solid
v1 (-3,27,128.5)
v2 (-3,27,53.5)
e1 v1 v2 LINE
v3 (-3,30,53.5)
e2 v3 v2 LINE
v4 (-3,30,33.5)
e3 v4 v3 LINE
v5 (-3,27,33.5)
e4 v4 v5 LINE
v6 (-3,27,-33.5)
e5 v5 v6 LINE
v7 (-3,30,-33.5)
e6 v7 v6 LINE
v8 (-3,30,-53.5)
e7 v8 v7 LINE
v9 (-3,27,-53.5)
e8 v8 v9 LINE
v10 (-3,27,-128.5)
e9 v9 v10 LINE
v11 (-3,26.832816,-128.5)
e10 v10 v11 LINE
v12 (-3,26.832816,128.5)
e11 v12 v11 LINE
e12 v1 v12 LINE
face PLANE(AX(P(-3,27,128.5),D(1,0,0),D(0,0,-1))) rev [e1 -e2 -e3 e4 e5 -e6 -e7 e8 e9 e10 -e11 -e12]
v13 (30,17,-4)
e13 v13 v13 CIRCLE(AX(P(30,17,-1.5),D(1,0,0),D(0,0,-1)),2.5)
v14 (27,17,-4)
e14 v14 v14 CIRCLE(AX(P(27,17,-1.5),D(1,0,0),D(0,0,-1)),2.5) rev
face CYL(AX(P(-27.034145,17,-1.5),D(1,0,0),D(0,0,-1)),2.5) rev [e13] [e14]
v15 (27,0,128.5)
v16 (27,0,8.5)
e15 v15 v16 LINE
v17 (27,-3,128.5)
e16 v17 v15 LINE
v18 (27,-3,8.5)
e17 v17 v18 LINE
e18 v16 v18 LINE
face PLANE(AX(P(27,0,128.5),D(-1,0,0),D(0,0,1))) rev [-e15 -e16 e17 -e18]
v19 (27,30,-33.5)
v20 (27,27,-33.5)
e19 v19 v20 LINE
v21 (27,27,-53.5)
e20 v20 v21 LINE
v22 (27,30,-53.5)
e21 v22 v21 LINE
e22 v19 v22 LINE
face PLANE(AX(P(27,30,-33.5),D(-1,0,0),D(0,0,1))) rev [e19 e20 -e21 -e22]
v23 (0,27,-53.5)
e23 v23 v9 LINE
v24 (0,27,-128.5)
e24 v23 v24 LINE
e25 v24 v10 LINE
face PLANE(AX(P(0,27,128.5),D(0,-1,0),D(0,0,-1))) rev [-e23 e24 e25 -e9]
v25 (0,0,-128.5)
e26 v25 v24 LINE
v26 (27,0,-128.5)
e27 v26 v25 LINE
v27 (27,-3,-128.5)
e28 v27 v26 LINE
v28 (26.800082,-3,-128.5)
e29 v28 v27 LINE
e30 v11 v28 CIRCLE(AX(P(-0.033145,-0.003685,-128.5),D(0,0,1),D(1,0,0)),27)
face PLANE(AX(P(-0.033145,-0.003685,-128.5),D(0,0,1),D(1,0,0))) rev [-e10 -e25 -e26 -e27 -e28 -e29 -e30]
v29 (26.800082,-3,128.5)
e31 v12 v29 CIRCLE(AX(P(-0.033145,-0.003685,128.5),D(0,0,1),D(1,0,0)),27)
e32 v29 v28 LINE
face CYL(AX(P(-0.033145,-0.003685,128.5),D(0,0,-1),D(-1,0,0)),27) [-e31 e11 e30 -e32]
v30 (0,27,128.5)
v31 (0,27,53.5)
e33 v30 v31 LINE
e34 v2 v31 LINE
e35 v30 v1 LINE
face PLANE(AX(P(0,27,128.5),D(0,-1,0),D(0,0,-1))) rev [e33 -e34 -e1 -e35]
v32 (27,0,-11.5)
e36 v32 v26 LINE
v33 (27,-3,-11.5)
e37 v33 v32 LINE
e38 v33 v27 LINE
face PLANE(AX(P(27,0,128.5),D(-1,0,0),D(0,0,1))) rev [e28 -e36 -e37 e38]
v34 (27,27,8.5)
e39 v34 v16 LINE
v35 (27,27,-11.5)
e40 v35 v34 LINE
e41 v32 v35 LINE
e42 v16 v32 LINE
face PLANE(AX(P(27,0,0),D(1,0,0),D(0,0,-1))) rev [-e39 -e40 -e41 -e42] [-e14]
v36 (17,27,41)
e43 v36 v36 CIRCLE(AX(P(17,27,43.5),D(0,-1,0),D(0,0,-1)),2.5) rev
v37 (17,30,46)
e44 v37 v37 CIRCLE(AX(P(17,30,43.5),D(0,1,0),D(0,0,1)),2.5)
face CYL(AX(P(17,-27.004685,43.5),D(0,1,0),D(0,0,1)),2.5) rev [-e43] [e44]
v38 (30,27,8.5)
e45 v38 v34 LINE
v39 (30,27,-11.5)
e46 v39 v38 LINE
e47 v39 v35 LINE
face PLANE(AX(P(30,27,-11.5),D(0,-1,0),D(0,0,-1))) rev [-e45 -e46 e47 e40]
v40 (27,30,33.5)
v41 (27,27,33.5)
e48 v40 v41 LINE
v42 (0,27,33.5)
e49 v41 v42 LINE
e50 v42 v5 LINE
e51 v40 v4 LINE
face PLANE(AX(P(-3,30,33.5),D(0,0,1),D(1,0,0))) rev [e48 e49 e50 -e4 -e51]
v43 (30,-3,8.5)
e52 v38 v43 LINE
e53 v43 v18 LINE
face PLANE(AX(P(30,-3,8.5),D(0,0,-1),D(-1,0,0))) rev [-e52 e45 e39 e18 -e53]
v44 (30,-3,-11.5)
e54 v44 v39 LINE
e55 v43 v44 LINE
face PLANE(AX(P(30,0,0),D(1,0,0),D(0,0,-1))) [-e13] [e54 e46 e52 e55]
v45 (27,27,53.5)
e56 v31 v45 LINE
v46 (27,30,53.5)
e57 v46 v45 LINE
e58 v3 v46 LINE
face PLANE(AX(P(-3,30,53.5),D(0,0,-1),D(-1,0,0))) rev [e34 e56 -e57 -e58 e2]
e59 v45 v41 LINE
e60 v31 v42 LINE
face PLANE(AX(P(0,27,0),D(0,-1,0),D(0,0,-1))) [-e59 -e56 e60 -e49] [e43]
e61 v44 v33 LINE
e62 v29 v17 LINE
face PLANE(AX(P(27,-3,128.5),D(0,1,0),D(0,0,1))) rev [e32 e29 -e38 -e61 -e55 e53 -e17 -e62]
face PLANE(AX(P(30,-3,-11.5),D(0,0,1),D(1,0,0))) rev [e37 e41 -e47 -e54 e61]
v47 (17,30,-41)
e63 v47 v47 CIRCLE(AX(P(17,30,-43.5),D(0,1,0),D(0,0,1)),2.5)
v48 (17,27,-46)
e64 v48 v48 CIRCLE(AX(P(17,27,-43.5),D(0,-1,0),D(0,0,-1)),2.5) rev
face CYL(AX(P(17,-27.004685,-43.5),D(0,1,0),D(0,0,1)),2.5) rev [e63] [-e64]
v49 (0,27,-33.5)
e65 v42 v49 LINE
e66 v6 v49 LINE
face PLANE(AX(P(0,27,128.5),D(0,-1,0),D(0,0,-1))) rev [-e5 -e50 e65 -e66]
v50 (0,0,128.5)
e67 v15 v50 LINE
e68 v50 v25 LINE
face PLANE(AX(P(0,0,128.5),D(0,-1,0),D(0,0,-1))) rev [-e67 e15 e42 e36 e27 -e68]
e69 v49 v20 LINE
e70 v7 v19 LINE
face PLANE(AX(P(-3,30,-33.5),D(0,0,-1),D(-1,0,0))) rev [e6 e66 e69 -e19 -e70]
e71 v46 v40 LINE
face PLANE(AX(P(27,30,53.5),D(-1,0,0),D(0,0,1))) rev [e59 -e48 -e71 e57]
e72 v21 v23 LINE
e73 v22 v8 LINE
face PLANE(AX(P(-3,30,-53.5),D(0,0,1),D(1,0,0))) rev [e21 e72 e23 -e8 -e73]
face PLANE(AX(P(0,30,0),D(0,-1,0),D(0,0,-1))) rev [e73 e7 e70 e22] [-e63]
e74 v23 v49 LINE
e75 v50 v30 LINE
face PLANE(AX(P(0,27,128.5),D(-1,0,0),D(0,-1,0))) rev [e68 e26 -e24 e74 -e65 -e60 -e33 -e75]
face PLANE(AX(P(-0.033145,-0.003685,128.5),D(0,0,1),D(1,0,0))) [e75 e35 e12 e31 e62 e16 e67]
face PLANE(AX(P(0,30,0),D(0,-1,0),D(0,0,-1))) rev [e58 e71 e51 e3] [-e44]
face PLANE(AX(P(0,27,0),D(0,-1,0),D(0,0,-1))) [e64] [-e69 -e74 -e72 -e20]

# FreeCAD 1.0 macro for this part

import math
import FreeCAD as App
import Part
import Sketcher


def add_polygon(sketch, points):
    """Adds a closed chain of lines whose ends are joined by coincident constraints."""
    first, n = sketch.GeometryCount, len(points)
    for a, b in zip(points, points[1:] + points[:1]):
        sketch.addGeometry(Part.LineSegment(App.Vector(*a, 0), App.Vector(*b, 0)), False)
    for i in range(n):
        sketch.addConstraint(Sketcher.Constraint("Coincident", first + i, 2, first + (i + 1) % n, 1))

doc = App.newDocument("Part")
body = doc.addObject("PartDesign::Body", "Body")

# Sketch on XY plane
sketch1 = body.newObject("Sketcher::SketchObject", "Sketch")
sketch1.AttachmentSupport = (doc.getObject("XY_Plane"), [""])
sketch1.MapMode = "FlatFace"
sketch1.addGeometry([
    Part.LineSegment(App.Vector(27, 0, 0), App.Vector(0, 0, 0)),  # 0
    Part.LineSegment(App.Vector(0, 0, 0), App.Vector(0, 27, 0)),  # 1
    Part.LineSegment(App.Vector(0, 27, 0), App.Vector(-3, 27, 0)),  # 2
    Part.LineSegment(App.Vector(-3, 27, 0), App.Vector(-3, 26.832816, 0)),  # 3
    Part.ArcOfCircle(Part.Circle(App.Vector(-0.033145, -0.003685, 0), App.Vector(0, 0, 1), 27), math.radians(96.308601), math.radians(353.628498)),  # 4
    Part.LineSegment(App.Vector(26.800082, -3, 0), App.Vector(27, -3, 0)),  # 5
    Part.LineSegment(App.Vector(27, -3, 0), App.Vector(27, 0, 0)),  # 6
], False)
sketch1.addConstraint([
    Sketcher.Constraint("Coincident", 0, 2, 1, 1),
    Sketcher.Constraint("Coincident", 1, 2, 2, 1),
    Sketcher.Constraint("Coincident", 2, 2, 3, 1),
    Sketcher.Constraint("Coincident", 3, 2, 4, 1),
    Sketcher.Constraint("Coincident", 4, 2, 5, 1),
    Sketcher.Constraint("Coincident", 5, 2, 6, 1),
    Sketcher.Constraint("Coincident", 6, 2, 0, 1),
    Sketcher.Constraint("Horizontal", 0),
    Sketcher.Constraint("Vertical", 1),
    Sketcher.Constraint("Horizontal", 2),
    Sketcher.Constraint("Vertical", 3),
    Sketcher.Constraint("Horizontal", 5),
    Sketcher.Constraint("Vertical", 6),
    Sketcher.Constraint("Coincident", 0, 2, -1, 1),
    Sketcher.Constraint("Equal", 0, 1),
    Sketcher.Constraint("Equal", 2, 6),
    Sketcher.Constraint("Radius", 4, 27.0),
    Sketcher.Constraint("DistanceX", 0, 2, 0, 1, 27.0),
    Sketcher.Constraint("DistanceX", 2, 2, 2, 1, 3.0),
    Sketcher.Constraint("DistanceY", 4, 3, 3, 2, 26.836501),
    Sketcher.Constraint("DistanceX", 5, 1, 5, 2, 0.199918),
])
pad1 = body.newObject("PartDesign::Pad", "Pad")
pad1.Profile = sketch1
pad1.Length = 257
pad1.Midplane = True

# Sketch on XZ plane
sketch2 = body.newObject("Sketcher::SketchObject", "Sketch001")
sketch2.AttachmentSupport = (doc.getObject("XZ_Plane"), [""])
sketch2.MapMode = "FlatFace"
sketch2.AttachmentOffset = App.Placement(App.Vector(0, 0, -27), App.Rotation())
add_polygon(sketch2, [(-3, 33.5), (-3, 53.5), (27, 53.5), (27, 33.5)])  # lines 0-3
add_polygon(sketch2, [(-3, -53.5), (-3, -33.5), (27, -33.5), (27, -53.5)])  # lines 4-7
sketch2.addConstraint([
    Sketcher.Constraint("Vertical", 0),
    Sketcher.Constraint("Horizontal", 1),
    Sketcher.Constraint("Vertical", 2),
    Sketcher.Constraint("Horizontal", 3),
    Sketcher.Constraint("Vertical", 4),
    Sketcher.Constraint("Horizontal", 5),
    Sketcher.Constraint("Vertical", 6),
    Sketcher.Constraint("Horizontal", 7),
    Sketcher.Constraint("Symmetric", 3, 2, 4, 2, -1),
    Sketcher.Constraint("Symmetric", 1, 2, 6, 2, -1),
    Sketcher.Constraint("DistanceX", 1, 1, 1, 2, 30.0),
    Sketcher.Constraint("DistanceY", 0, 1, 0, 2, 20.0),
    Sketcher.Constraint("DistanceX", 0, 2, -1, 1, 3.0),
    Sketcher.Constraint("DistanceY", 4, 2, 3, 2, 67.0),
])
pad2 = body.newObject("PartDesign::Pad", "Pad001")
pad2.Profile = sketch2
pad2.Length = 3
pad2.Reversed = True

# Sketch on XZ plane
sketch3 = body.newObject("Sketcher::SketchObject", "Sketch002")
sketch3.AttachmentSupport = (doc.getObject("XZ_Plane"), [""])
sketch3.MapMode = "FlatFace"
sketch3.AttachmentOffset = App.Placement(App.Vector(0, 0, -30), App.Rotation())
sketch3.addGeometry(Part.Circle(App.Vector(17, 43.5, 0), App.Vector(0, 0, 1), 2.5), False)
sketch3.addConstraint([
    Sketcher.Constraint("Diameter", 0, 5.0),
    Sketcher.Constraint("DistanceX", -1, 1, 0, 3, 17.0),
    Sketcher.Constraint("DistanceY", -1, 1, 0, 3, 43.5),
])
pocket1 = body.newObject("PartDesign::Pocket", "Pocket")
pocket1.Profile = sketch3
pocket1.Type = "UpToFirst"
pocket1.Reversed = True

# Sketch on XZ plane
sketch4 = body.newObject("Sketcher::SketchObject", "Sketch003")
sketch4.AttachmentSupport = (doc.getObject("XZ_Plane"), [""])
sketch4.MapMode = "FlatFace"
sketch4.AttachmentOffset = App.Placement(App.Vector(0, 0, -30), App.Rotation())
sketch4.addGeometry(Part.Circle(App.Vector(17, -43.5, 0), App.Vector(0, 0, 1), 2.5), False)
sketch4.addConstraint([
    Sketcher.Constraint("Diameter", 0, 5.0),
    Sketcher.Constraint("DistanceX", -1, 1, 0, 3, 17.0),
    Sketcher.Constraint("DistanceY", 0, 3, -1, 1, 43.5),
])
pocket2 = body.newObject("PartDesign::Pocket", "Pocket001")
pocket2.Profile = sketch4
pocket2.Type = "UpToFirst"
pocket2.Reversed = True

# Sketch on YZ plane
sketch5 = body.newObject("Sketcher::SketchObject", "Sketch004")
sketch5.AttachmentSupport = (doc.getObject("YZ_Plane"), [""])
sketch5.MapMode = "FlatFace"
sketch5.AttachmentOffset = App.Placement(App.Vector(0, 0, 27), App.Rotation())
add_polygon(sketch5, [(27, 8.5), (-3, 8.5), (-3, -11.5), (27, -11.5)])  # lines 0-3
sketch5.addConstraint([
    Sketcher.Constraint("Horizontal", 0),
    Sketcher.Constraint("Vertical", 1),
    Sketcher.Constraint("Horizontal", 2),
    Sketcher.Constraint("Vertical", 3),
    Sketcher.Constraint("DistanceX", 0, 2, 0, 1, 30.0),
    Sketcher.Constraint("DistanceY", 1, 2, 1, 1, 20.0),
    Sketcher.Constraint("DistanceX", 0, 2, -1, 1, 3.0),
    Sketcher.Constraint("DistanceY", -1, 1, 0, 2, 8.5),
])
pad3 = body.newObject("PartDesign::Pad", "Pad002")
pad3.Profile = sketch5
pad3.Length = 3

# Sketch on YZ plane
sketch6 = body.newObject("Sketcher::SketchObject", "Sketch005")
sketch6.AttachmentSupport = (doc.getObject("YZ_Plane"), [""])
sketch6.MapMode = "FlatFace"
sketch6.AttachmentOffset = App.Placement(App.Vector(0, 0, 30), App.Rotation())
sketch6.addGeometry(Part.Circle(App.Vector(17, -1.5, 0), App.Vector(0, 0, 1), 2.5), False)
sketch6.addConstraint([
    Sketcher.Constraint("Diameter", 0, 5.0),
    Sketcher.Constraint("DistanceX", -1, 1, 0, 3, 17.0),
    Sketcher.Constraint("DistanceY", 0, 3, -1, 1, 1.5),
])
pocket3 = body.newObject("PartDesign::Pocket", "Pocket002")
pocket3.Profile = sketch6
pocket3.Type = "UpToFirst"

doc.recompute()
